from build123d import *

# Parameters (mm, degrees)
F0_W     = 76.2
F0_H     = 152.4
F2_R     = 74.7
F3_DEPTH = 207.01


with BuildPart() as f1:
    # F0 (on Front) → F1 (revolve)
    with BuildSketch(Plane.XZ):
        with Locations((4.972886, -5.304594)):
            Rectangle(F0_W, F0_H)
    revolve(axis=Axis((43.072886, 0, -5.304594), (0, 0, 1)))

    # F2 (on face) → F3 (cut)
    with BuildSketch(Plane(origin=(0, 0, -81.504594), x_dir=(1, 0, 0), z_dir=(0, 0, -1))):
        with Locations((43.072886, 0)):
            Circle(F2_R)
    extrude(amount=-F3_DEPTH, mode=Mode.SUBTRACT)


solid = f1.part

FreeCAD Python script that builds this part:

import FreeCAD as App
import Part
import Sketcher
Q = App.Units.Quantity

doc = App.newDocument("Part")
body = doc.addObject("PartDesign::Body", "Body")

# Sketch on XZ plane
sketch1 = body.newObject("Sketcher::SketchObject", "Sketch")
sketch1.AttachmentSupport = (doc.getObject("XZ_Plane"), [""])
sketch1.MapMode = "FlatFace"
sketch1.addGeometry(Part.LineSegment(App.Vector(-33, 71, 0), App.Vector(-33, -82, 0)), False)
sketch1.addGeometry(Part.LineSegment(App.Vector(-33, -82, 0), App.Vector(43, -82, 0)), False)
sketch1.addGeometry(Part.LineSegment(App.Vector(43, -82, 0), App.Vector(43, 71, 0)), False)
sketch1.addGeometry(Part.LineSegment(App.Vector(43, 71, 0), App.Vector(-33, 71, 0)), False)
sketch1.addGeometry(Part.LineSegment(App.Vector(43, -82, 0), App.Vector(43, 71, 0)), True)  # axis
sketch1.addConstraint(Sketcher.Constraint("Coincident", 0, 2, 1, 1))
sketch1.addConstraint(Sketcher.Constraint("Coincident", 1, 2, 2, 1))
sketch1.addConstraint(Sketcher.Constraint("Coincident", 2, 2, 3, 1))
sketch1.addConstraint(Sketcher.Constraint("Coincident", 3, 2, 0, 1))
sketch1.addConstraint(Sketcher.Constraint("Vertical", 0))
sketch1.addConstraint(Sketcher.Constraint("Horizontal", 1))
sketch1.addConstraint(Sketcher.Constraint("Vertical", 2))
sketch1.addConstraint(Sketcher.Constraint("Horizontal", 3))
sketch1.addConstraint(Sketcher.Constraint("Vertical", 4))
sketch1.addConstraint(Sketcher.Constraint("Coincident", 4, 1, 1, 2))
sketch1.addConstraint(Sketcher.Constraint("Horizontal", 3, 2, 4, 2))
sketch1.addConstraint(Sketcher.Constraint("DistanceX", 1, 1, 1, 2, Q("3 in")))
sketch1.addConstraint(Sketcher.Constraint("DistanceY", 0, 2, 0, 1, Q("6 in")))
sketch1.addConstraint(Sketcher.Constraint("DistanceX", 0, 2, -1, 1, 33.127114))
sketch1.addConstraint(Sketcher.Constraint("DistanceY", 0, 2, -1, 1, 81.504594))
revolution = body.newObject("PartDesign::Revolution", "Revolution")
revolution.Profile = sketch1
revolution.ReferenceAxis = (sketch1, ["Axis0"])
revolution.Angle = 360

# Sketch on XY plane
sketch2 = body.newObject("Sketcher::SketchObject", "Sketch001")
sketch2.AttachmentSupport = (doc.getObject("XY_Plane"), [""])
sketch2.MapMode = "FlatFace"
sketch2.AttachmentOffset = App.Placement(App.Vector(0, 0, -81.504594), App.Rotation())
sketch2.addGeometry(Part.Circle(App.Vector(43, 0, 0), App.Vector(0, 0, 1), 75), False)
sketch2.addConstraint(Sketcher.Constraint("PointOnObject", 0, 3, -1))
sketch2.addConstraint(Sketcher.Constraint("Diameter", 0, 149.4))
sketch2.addConstraint(Sketcher.Constraint("DistanceX", -1, 1, 0, 3, 43.072886))
pocket1 = body.newObject("PartDesign::Pocket", "Pocket")
pocket1.Profile = sketch2
pocket1.Length = Q("8.15 in")
pocket1.Reversed = True

doc.recompute()
